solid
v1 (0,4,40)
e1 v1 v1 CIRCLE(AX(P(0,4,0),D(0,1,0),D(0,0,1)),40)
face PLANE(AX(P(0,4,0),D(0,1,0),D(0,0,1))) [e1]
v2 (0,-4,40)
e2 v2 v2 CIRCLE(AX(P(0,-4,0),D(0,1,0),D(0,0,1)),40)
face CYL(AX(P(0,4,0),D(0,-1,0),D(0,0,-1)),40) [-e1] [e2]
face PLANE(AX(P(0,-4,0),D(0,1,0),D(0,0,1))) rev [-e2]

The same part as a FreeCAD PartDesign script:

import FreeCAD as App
import Part
import Sketcher

doc = App.newDocument("Part")
body = doc.addObject("PartDesign::Body", "Body")

# Sketch on XZ plane
sketch1 = body.newObject("Sketcher::SketchObject", "Sketch")
sketch1.AttachmentSupport = (doc.getObject("XZ_Plane"), [""])
sketch1.MapMode = "FlatFace"
sketch1.addGeometry(Part.Circle(App.Vector(0, 0, 0), App.Vector(0, 0, 1), 40), False)
sketch1.addConstraint(Sketcher.Constraint("Coincident", 0, 3, -1, 1))
sketch1.addConstraint(Sketcher.Constraint("Diameter", 0, 80.0))
pad1 = body.newObject("PartDesign::Pad", "Pad")
pad1.Profile = sketch1
pad1.Length = 8
pad1.Midplane = True

doc.recompute()
